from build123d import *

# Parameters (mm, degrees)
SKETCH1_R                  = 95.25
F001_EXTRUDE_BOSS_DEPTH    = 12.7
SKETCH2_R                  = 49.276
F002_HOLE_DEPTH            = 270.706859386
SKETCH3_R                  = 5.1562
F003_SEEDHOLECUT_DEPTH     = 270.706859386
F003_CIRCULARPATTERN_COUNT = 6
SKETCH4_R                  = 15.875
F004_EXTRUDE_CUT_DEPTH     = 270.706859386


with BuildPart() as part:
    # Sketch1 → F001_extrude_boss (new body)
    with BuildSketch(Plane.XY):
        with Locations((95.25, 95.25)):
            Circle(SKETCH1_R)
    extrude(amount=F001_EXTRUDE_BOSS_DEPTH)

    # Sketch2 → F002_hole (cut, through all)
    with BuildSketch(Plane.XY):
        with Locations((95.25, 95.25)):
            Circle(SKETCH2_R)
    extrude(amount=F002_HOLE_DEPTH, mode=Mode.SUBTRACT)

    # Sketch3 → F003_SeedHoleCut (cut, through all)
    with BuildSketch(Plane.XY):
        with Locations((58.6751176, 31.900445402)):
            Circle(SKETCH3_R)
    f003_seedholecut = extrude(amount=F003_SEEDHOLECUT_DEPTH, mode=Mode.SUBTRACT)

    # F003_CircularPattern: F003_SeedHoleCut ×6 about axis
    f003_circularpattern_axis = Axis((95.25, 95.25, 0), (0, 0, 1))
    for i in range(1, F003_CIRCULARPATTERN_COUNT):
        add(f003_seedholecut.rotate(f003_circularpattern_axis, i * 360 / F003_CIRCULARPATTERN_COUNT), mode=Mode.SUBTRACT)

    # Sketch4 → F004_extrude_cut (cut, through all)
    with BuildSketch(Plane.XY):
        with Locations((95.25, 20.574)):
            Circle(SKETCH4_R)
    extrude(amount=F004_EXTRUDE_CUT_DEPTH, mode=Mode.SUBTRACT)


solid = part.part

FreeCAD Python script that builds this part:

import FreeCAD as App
import Part
import Sketcher
Q = App.Units.Quantity

doc = App.newDocument("Part")
params = doc.addObject("Spreadsheet::Sheet", "Params")
for row, (alias, value) in enumerate([
    ("sketch1_diameter", "7.5 in"),
    ("pad1_length", "0.5 in"),
    ("sketch2_diameter", "3.88 in"),
    ("sketch3_diameter", "0.406 in"),
    ("sketch4_diameter", "1.25 in"),
], start=1):
    params.set(f"A{row}", alias)
    params.set(f"B{row}", "=" + value)
    params.setAlias(f"B{row}", alias)

body = doc.addObject("PartDesign::Body", "Body")

sketch1 = body.newObject("Sketcher::SketchObject", "Sketch")
sketch1.AttachmentSupport = (doc.getObject("XY_Plane"), [""])
sketch1.MapMode = "FlatFace"
sketch1.addGeometry(Part.Circle(App.Vector(95, 95, 0), App.Vector(0, 0, 1), 95), False)
sketch1.addConstraint([
    Sketcher.Constraint("Diameter", 0, Q("7.5 in")),
    Sketcher.Constraint("DistanceX", -1, 1, 0, 3, Q("3.75 in")),
    Sketcher.Constraint("DistanceY", -1, 1, 0, 3, Q("3.75 in")),
])
sketch1.setExpression("Constraints[0]", "Params.sketch1_diameter")
pad1 = body.newObject("PartDesign::Pad", "Pad")
pad1.Profile = sketch1
pad1.setExpression("Length", "Params.pad1_length")

sketch2 = body.newObject("Sketcher::SketchObject", "Sketch001")
sketch2.AttachmentSupport = (doc.getObject("XY_Plane"), [""])
sketch2.MapMode = "FlatFace"
sketch2.addGeometry(Part.Circle(App.Vector(95, 95, 0), App.Vector(0, 0, 1), 49), False)
sketch2.addConstraint([
    Sketcher.Constraint("Diameter", 0, Q("3.88 in")),
    Sketcher.Constraint("DistanceX", -1, 1, 0, 3, Q("3.75 in")),
    Sketcher.Constraint("DistanceY", -1, 1, 0, 3, Q("3.75 in")),
])
sketch2.setExpression("Constraints[0]", "Params.sketch2_diameter")
pocket1 = body.newObject("PartDesign::Pocket", "Pocket")
pocket1.Profile = sketch2
pocket1.Type = "ThroughAll"
pocket1.Reversed = True

sketch3 = body.newObject("Sketcher::SketchObject", "Sketch002")
sketch3.AttachmentSupport = (doc.getObject("XY_Plane"), [""])
sketch3.MapMode = "FlatFace"
sketch3.addGeometry(Part.Circle(App.Vector(59, 32, 0), App.Vector(0, 0, 1), 5), False)
sketch3.addConstraint([
    Sketcher.Constraint("Diameter", 0, Q("0.406 in")),
    Sketcher.Constraint("DistanceX", -1, 1, 0, 3, Q("58.675118 mm")),
    Sketcher.Constraint("DistanceY", -1, 1, 0, 3, Q("31.900445 mm")),
])
sketch3.setExpression("Constraints[0]", "Params.sketch3_diameter")
pocket2 = body.newObject("PartDesign::Pocket", "Pocket001")
pocket2.Profile = sketch3
pocket2.Type = "ThroughAll"
pocket2.Reversed = True
doc.recompute()

datumline = body.newObject("PartDesign::Line", "DatumLine")
datumline.Placement = App.Placement(App.Vector(95.25, 95.25, 0), App.Rotation(App.Vector(0, 0, 1), App.Vector(0, 0, 1)))
polarpattern = body.newObject("PartDesign::PolarPattern", "PolarPattern")
polarpattern.Originals = [pocket2]
polarpattern.Axis = (datumline, [""])
polarpattern.Angle = 360
polarpattern.Occurrences = 6
body.Tip = polarpattern

sketch4 = body.newObject("Sketcher::SketchObject", "Sketch003")
sketch4.AttachmentSupport = (doc.getObject("XY_Plane"), [""])
sketch4.MapMode = "FlatFace"
sketch4.addGeometry(Part.Circle(App.Vector(95, 21, 0), App.Vector(0, 0, 1), 16), False)
sketch4.addConstraint([
    Sketcher.Constraint("Diameter", 0, Q("1.25 in")),
    Sketcher.Constraint("DistanceX", -1, 1, 0, 3, Q("3.75 in")),
    Sketcher.Constraint("DistanceY", -1, 1, 0, 3, Q("0.81 in")),
])
sketch4.setExpression("Constraints[0]", "Params.sketch4_diameter")
pocket3 = body.newObject("PartDesign::Pocket", "Pocket002")
pocket3.Profile = sketch4
pocket3.Type = "ThroughAll"
pocket3.Reversed = True

doc.recompute()
